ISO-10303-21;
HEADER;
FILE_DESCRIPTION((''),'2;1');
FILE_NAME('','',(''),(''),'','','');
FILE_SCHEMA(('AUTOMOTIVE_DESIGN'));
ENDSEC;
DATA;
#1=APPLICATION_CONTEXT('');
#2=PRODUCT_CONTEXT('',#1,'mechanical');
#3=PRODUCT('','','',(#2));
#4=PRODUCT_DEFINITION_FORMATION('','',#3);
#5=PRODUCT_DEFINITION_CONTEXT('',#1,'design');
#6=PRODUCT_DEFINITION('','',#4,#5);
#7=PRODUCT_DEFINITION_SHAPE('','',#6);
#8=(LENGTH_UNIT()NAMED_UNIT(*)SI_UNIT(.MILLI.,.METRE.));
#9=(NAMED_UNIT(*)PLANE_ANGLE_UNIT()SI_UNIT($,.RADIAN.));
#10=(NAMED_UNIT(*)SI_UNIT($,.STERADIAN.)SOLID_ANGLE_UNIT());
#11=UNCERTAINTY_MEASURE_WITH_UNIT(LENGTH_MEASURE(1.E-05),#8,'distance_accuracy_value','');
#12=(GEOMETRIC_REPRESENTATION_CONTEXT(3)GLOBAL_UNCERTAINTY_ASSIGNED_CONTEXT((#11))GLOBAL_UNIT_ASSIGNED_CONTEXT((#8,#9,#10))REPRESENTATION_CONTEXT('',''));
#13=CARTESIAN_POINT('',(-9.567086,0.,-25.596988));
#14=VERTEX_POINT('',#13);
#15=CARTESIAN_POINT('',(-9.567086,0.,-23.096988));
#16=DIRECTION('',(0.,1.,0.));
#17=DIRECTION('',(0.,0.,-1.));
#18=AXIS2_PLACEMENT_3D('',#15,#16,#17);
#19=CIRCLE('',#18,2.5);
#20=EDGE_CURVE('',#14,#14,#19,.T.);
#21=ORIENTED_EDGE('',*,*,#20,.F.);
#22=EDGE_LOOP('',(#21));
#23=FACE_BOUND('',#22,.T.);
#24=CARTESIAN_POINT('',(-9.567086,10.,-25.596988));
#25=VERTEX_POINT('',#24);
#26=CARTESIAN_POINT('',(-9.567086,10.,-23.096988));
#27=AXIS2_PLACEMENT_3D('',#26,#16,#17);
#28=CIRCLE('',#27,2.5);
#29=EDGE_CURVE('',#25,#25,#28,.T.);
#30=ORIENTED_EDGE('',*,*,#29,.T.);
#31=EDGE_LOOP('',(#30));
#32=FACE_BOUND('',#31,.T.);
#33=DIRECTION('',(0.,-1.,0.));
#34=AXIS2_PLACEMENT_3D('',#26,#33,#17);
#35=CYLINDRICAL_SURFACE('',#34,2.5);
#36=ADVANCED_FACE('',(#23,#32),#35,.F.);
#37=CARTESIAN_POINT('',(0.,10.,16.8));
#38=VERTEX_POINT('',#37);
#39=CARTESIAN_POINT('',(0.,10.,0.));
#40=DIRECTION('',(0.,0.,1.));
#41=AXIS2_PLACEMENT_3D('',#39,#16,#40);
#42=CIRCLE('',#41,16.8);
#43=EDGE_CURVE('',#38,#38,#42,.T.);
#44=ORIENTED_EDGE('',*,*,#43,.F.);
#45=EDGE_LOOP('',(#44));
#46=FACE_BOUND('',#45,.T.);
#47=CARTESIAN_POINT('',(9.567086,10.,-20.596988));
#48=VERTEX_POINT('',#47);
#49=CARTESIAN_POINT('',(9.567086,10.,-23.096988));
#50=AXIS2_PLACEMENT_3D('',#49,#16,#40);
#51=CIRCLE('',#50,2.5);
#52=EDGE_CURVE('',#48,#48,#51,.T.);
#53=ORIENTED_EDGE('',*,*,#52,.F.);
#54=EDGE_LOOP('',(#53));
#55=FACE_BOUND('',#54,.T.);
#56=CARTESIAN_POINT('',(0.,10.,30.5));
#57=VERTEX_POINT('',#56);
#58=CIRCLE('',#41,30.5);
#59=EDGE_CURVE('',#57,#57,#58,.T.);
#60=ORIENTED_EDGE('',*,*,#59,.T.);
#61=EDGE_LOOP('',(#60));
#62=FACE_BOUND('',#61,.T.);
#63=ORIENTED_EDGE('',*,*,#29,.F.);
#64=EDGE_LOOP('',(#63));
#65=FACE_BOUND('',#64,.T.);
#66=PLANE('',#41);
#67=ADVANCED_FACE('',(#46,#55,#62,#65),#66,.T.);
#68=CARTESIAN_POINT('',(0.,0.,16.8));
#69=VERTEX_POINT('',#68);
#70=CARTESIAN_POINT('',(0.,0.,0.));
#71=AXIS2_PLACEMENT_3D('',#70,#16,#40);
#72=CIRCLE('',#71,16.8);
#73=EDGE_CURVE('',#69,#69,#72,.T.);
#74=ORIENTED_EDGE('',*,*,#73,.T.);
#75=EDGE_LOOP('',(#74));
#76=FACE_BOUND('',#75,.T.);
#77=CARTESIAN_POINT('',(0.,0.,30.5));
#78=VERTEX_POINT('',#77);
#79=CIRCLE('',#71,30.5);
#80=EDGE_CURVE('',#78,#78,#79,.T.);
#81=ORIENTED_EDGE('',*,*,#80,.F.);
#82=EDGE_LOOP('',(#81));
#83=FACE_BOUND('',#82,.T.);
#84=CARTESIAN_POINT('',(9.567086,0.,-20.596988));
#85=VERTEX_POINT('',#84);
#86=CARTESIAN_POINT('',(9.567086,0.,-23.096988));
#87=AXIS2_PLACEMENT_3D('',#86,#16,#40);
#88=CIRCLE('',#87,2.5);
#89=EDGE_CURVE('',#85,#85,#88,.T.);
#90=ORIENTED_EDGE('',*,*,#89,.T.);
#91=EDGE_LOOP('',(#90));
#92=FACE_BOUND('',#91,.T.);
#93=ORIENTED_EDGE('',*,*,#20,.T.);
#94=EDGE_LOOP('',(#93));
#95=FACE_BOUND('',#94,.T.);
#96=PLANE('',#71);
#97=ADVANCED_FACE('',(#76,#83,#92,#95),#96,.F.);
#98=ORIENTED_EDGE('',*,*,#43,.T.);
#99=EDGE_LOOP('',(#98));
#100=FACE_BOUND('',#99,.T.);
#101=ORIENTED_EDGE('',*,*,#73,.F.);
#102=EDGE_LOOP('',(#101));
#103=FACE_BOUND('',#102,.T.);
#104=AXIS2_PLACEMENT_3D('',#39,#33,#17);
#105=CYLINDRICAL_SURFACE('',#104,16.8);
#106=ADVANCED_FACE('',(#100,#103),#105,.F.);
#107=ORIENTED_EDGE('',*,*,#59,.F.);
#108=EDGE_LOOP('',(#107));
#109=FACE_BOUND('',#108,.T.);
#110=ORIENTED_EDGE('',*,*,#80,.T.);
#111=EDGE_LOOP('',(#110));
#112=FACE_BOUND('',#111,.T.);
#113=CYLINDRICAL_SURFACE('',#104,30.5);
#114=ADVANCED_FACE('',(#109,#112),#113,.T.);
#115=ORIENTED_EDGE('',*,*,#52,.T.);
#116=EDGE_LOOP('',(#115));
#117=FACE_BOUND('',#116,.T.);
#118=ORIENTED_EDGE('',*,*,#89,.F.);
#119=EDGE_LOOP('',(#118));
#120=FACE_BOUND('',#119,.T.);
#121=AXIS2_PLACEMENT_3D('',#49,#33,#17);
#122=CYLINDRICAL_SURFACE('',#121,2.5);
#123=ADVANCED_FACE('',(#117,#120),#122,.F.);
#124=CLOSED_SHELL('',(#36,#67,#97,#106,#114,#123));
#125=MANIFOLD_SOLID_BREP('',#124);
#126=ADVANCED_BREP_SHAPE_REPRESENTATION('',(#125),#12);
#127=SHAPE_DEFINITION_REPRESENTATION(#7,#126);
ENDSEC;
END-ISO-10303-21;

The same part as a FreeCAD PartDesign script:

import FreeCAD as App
import Part
import Sketcher
from FreeCAD import Vector

doc = App.newDocument("Part")
body = doc.addObject("PartDesign::Body", "Body")

# Sketch on XZ plane
sketch1 = body.newObject("Sketcher::SketchObject", "Sketch")
sketch1.AttachmentSupport = (doc.getObject("XZ_Plane"), [""])
sketch1.MapMode = "FlatFace"
sketch1.addGeometry(Part.Circle(Vector(0, 0, 0), Vector(0, 0, 1), 30.5), False)
sketch1.addGeometry(Part.Circle(Vector(-9.567086, -23.096988, 0), Vector(0, 0, 1), 2.5), False)
sketch1.addGeometry(Part.Circle(Vector(9.567086, -23.096988, 0), Vector(0, 0, 1), 2.5), False)
sketch1.addGeometry(Part.Circle(Vector(0, 0, 0), Vector(0, 0, 1), 16.8), False)
sketch1.addConstraint(Sketcher.Constraint("Coincident", 0, 3, -1, 1))
sketch1.addConstraint(Sketcher.Constraint("Coincident", 3, 3, -1, 1))
sketch1.addConstraint(Sketcher.Constraint("Equal", 1, 2))
sketch1.addConstraint(Sketcher.Constraint("Symmetric", 1, 3, 2, 3, -2))
sketch1.addConstraint(Sketcher.Constraint("Diameter", 0, 61.0))
sketch1.addConstraint(Sketcher.Constraint("Diameter", 1, 5.0))
sketch1.addConstraint(Sketcher.Constraint("Diameter", 3, 33.6))
sketch1.addConstraint(Sketcher.Constraint("DistanceY", 1, 3, -1, 1, 23.096988))
sketch1.addConstraint(Sketcher.Constraint("DistanceX", 1, 3, 2, 3, 19.134172))
pad1 = body.newObject("PartDesign::Pad", "Pad")
pad1.Profile = sketch1
pad1.Length = 10
pad1.Reversed = True

doc.recompute()
